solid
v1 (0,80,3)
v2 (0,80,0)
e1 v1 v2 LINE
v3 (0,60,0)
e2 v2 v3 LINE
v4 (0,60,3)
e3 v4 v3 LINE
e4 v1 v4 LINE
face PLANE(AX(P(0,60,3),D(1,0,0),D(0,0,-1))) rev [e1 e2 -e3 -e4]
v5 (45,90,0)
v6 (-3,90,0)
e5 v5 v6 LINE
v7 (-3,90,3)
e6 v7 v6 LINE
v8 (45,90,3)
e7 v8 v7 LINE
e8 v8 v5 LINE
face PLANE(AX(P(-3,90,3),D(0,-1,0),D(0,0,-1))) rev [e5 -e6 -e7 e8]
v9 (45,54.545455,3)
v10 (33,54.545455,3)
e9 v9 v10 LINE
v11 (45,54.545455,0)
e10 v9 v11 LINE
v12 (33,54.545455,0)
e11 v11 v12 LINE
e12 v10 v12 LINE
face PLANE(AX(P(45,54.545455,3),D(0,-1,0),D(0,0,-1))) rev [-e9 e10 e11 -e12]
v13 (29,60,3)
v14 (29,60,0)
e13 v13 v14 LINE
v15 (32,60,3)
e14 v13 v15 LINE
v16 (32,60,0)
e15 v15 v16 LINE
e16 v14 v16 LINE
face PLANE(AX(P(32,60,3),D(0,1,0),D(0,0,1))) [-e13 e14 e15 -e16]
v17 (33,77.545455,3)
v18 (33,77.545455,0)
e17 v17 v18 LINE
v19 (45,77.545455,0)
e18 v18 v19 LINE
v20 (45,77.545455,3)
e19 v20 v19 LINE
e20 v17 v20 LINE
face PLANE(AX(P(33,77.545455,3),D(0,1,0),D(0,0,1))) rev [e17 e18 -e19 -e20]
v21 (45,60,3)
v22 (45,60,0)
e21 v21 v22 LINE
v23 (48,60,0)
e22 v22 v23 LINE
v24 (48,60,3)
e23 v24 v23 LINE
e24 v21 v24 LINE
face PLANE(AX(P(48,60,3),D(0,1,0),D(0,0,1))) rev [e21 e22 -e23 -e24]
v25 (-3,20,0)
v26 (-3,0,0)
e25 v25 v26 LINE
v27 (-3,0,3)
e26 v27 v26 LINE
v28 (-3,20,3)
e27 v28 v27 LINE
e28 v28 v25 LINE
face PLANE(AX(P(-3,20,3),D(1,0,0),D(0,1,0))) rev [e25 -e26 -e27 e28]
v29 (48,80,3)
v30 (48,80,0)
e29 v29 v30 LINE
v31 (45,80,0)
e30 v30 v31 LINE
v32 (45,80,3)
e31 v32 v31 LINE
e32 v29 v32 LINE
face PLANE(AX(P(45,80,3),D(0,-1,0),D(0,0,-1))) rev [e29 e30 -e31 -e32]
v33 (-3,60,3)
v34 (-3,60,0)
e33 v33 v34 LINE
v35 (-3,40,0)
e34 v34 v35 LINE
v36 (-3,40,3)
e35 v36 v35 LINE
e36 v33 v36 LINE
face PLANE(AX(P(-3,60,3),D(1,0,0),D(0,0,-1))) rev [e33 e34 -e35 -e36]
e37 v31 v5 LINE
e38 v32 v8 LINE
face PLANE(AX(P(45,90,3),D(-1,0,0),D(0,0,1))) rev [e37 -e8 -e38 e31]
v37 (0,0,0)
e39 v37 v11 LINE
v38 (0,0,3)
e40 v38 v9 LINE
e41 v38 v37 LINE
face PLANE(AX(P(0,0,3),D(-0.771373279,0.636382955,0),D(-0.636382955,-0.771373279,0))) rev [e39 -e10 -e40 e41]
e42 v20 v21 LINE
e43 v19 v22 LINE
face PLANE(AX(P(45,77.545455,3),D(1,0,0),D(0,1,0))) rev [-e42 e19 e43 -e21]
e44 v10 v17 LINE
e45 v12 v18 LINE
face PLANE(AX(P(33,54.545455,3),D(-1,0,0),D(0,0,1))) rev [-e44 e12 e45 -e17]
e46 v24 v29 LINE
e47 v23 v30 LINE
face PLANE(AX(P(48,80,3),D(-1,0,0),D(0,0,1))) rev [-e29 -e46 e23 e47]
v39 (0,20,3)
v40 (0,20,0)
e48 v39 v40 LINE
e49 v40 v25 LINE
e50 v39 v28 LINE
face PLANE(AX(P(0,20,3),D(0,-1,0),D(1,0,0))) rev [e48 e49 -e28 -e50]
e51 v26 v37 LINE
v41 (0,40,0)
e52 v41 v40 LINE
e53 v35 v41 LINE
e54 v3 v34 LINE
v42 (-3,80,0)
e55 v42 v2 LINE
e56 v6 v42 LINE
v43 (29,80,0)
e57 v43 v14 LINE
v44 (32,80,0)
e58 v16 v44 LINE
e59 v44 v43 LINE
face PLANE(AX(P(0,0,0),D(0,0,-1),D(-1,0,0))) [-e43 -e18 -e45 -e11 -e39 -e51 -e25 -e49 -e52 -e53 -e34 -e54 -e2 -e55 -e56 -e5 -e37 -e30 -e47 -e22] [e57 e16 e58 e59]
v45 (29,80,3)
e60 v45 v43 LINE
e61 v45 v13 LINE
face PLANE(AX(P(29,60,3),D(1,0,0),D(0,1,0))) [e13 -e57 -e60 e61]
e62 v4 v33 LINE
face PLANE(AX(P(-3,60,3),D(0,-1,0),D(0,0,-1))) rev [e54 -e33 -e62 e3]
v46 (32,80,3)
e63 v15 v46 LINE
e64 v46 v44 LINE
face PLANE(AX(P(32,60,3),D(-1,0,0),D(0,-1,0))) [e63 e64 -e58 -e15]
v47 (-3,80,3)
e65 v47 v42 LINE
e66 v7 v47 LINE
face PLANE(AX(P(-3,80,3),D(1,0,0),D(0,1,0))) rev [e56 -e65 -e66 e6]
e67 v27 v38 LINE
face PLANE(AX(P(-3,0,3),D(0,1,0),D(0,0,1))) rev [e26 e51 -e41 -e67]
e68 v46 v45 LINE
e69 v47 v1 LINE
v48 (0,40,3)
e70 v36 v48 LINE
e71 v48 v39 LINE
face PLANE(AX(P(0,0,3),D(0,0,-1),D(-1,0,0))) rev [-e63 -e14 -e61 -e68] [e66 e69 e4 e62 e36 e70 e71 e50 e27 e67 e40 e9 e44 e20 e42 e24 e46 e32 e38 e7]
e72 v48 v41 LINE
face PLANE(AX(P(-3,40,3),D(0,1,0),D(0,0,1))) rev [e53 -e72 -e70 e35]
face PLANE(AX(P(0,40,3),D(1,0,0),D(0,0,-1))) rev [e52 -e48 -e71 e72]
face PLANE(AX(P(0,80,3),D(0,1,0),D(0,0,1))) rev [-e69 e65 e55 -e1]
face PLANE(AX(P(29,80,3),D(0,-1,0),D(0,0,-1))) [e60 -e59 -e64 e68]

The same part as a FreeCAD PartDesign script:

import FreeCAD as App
import Part
import Sketcher

doc = App.newDocument("Part")
body = doc.addObject("PartDesign::Body", "Body")

# Sketch on XY plane
sketch1 = doc.addObject("Sketcher::SketchObject", "Sketch")
body.addObject(sketch1)
sketch1.AttachmentSupport = (doc.XY_Plane, [""])
sketch1.MapMode = "FlatFace"
sketch1.addGeometry(Part.LineSegment(App.Vector(-3, 60, 0), App.Vector(-3, 40, 0)), False)
sketch1.addGeometry(Part.LineSegment(App.Vector(-3, 40, 0), App.Vector(0, 40, 0)), False)
sketch1.addGeometry(Part.LineSegment(App.Vector(0, 40, 0), App.Vector(0, 20, 0)), False)
sketch1.addGeometry(Part.LineSegment(App.Vector(0, 20, 0), App.Vector(-3, 20, 0)), False)
sketch1.addGeometry(Part.LineSegment(App.Vector(-3, 20, 0), App.Vector(-3, 0, 0)), False)
sketch1.addGeometry(Part.LineSegment(App.Vector(-3, 0, 0), App.Vector(0, 0, 0)), False)
sketch1.addGeometry(Part.LineSegment(App.Vector(0, 0, 0), App.Vector(45, 54.5, 0)), False)
sketch1.addGeometry(Part.LineSegment(App.Vector(45, 54.5, 0), App.Vector(33, 54.5, 0)), False)
sketch1.addGeometry(Part.LineSegment(App.Vector(33, 54.5, 0), App.Vector(33, 77.5, 0)), False)
sketch1.addGeometry(Part.LineSegment(App.Vector(33, 77.5, 0), App.Vector(45, 77.5, 0)), False)
sketch1.addGeometry(Part.LineSegment(App.Vector(45, 77.5, 0), App.Vector(45, 60, 0)), False)
sketch1.addGeometry(Part.LineSegment(App.Vector(45, 60, 0), App.Vector(48, 60, 0)), False)
sketch1.addGeometry(Part.LineSegment(App.Vector(48, 60, 0), App.Vector(48, 80, 0)), False)
sketch1.addGeometry(Part.LineSegment(App.Vector(48, 80, 0), App.Vector(45, 80, 0)), False)
sketch1.addGeometry(Part.LineSegment(App.Vector(45, 80, 0), App.Vector(45, 90, 0)), False)
sketch1.addGeometry(Part.LineSegment(App.Vector(45, 90, 0), App.Vector(-3, 90, 0)), False)
sketch1.addGeometry(Part.LineSegment(App.Vector(-3, 90, 0), App.Vector(-3, 80, 0)), False)
sketch1.addGeometry(Part.LineSegment(App.Vector(-3, 80, 0), App.Vector(0, 80, 0)), False)
sketch1.addGeometry(Part.LineSegment(App.Vector(0, 80, 0), App.Vector(0, 60, 0)), False)
sketch1.addGeometry(Part.LineSegment(App.Vector(0, 60, 0), App.Vector(-3, 60, 0)), False)
sketch1.addGeometry(Part.LineSegment(App.Vector(32, 60, 0), App.Vector(29, 60, 0)), False)
sketch1.addGeometry(Part.LineSegment(App.Vector(29, 60, 0), App.Vector(29, 80, 0)), False)
sketch1.addGeometry(Part.LineSegment(App.Vector(29, 80, 0), App.Vector(32, 80, 0)), False)
sketch1.addGeometry(Part.LineSegment(App.Vector(32, 80, 0), App.Vector(32, 60, 0)), False)
sketch1.addConstraint(Sketcher.Constraint("Coincident", 0, 2, 1, 1))
sketch1.addConstraint(Sketcher.Constraint("Coincident", 1, 2, 2, 1))
sketch1.addConstraint(Sketcher.Constraint("Coincident", 2, 2, 3, 1))
sketch1.addConstraint(Sketcher.Constraint("Coincident", 3, 2, 4, 1))
sketch1.addConstraint(Sketcher.Constraint("Coincident", 4, 2, 5, 1))
sketch1.addConstraint(Sketcher.Constraint("Coincident", 5, 2, 6, 1))
sketch1.addConstraint(Sketcher.Constraint("Coincident", 6, 2, 7, 1))
sketch1.addConstraint(Sketcher.Constraint("Coincident", 7, 2, 8, 1))
sketch1.addConstraint(Sketcher.Constraint("Coincident", 8, 2, 9, 1))
sketch1.addConstraint(Sketcher.Constraint("Coincident", 9, 2, 10, 1))
sketch1.addConstraint(Sketcher.Constraint("Coincident", 10, 2, 11, 1))
sketch1.addConstraint(Sketcher.Constraint("Coincident", 11, 2, 12, 1))
sketch1.addConstraint(Sketcher.Constraint("Coincident", 12, 2, 13, 1))
sketch1.addConstraint(Sketcher.Constraint("Coincident", 13, 2, 14, 1))
sketch1.addConstraint(Sketcher.Constraint("Coincident", 14, 2, 15, 1))
sketch1.addConstraint(Sketcher.Constraint("Coincident", 15, 2, 16, 1))
sketch1.addConstraint(Sketcher.Constraint("Coincident", 16, 2, 17, 1))
sketch1.addConstraint(Sketcher.Constraint("Coincident", 17, 2, 18, 1))
sketch1.addConstraint(Sketcher.Constraint("Coincident", 18, 2, 19, 1))
sketch1.addConstraint(Sketcher.Constraint("Coincident", 19, 2, 0, 1))
sketch1.addConstraint(Sketcher.Constraint("Coincident", 20, 2, 21, 1))
sketch1.addConstraint(Sketcher.Constraint("Coincident", 21, 2, 22, 1))
sketch1.addConstraint(Sketcher.Constraint("Coincident", 22, 2, 23, 1))
sketch1.addConstraint(Sketcher.Constraint("Coincident", 23, 2, 20, 1))
sketch1.addConstraint(Sketcher.Constraint("Vertical", 0))
sketch1.addConstraint(Sketcher.Constraint("Horizontal", 1))
sketch1.addConstraint(Sketcher.Constraint("Vertical", 2))
sketch1.addConstraint(Sketcher.Constraint("Horizontal", 3))
sketch1.addConstraint(Sketcher.Constraint("Vertical", 4))
sketch1.addConstraint(Sketcher.Constraint("Horizontal", 5))
sketch1.addConstraint(Sketcher.Constraint("Horizontal", 7))
sketch1.addConstraint(Sketcher.Constraint("Vertical", 8))
sketch1.addConstraint(Sketcher.Constraint("Horizontal", 9))
sketch1.addConstraint(Sketcher.Constraint("Vertical", 10))
sketch1.addConstraint(Sketcher.Constraint("Horizontal", 11))
sketch1.addConstraint(Sketcher.Constraint("Vertical", 12))
sketch1.addConstraint(Sketcher.Constraint("Horizontal", 13))
sketch1.addConstraint(Sketcher.Constraint("Vertical", 14))
sketch1.addConstraint(Sketcher.Constraint("Horizontal", 15))
sketch1.addConstraint(Sketcher.Constraint("Vertical", 16))
sketch1.addConstraint(Sketcher.Constraint("Horizontal", 17))
sketch1.addConstraint(Sketcher.Constraint("Vertical", 18))
sketch1.addConstraint(Sketcher.Constraint("Horizontal", 19))
sketch1.addConstraint(Sketcher.Constraint("Horizontal", 20))
sketch1.addConstraint(Sketcher.Constraint("Vertical", 21))
sketch1.addConstraint(Sketcher.Constraint("Horizontal", 22))
sketch1.addConstraint(Sketcher.Constraint("Vertical", 23))
sketch1.addConstraint(Sketcher.Constraint("Coincident", 5, 2, -1, 1))
sketch1.addConstraint(Sketcher.Constraint("PointOnObject", 1, 2, -2))
sketch1.addConstraint(Sketcher.Constraint("PointOnObject", 17, 2, -2))
sketch1.addConstraint(Sketcher.Constraint("Horizontal", 13, 2, 16, 2))
sketch1.addConstraint(Sketcher.Constraint("Horizontal", 11, 2, 18, 2))
sketch1.addConstraint(Sketcher.Constraint("Horizontal", 19, 2, 20, 2))
sketch1.addConstraint(Sketcher.Constraint("Horizontal", 17, 2, 21, 2))
sketch1.addConstraint(Sketcher.Constraint("Vertical", 0, 2, 3, 2))
sketch1.addConstraint(Sketcher.Constraint("Vertical", 6, 2, 9, 2))
sketch1.addConstraint(Sketcher.Constraint("Vertical", 10, 2, 13, 2))
sketch1.addConstraint(Sketcher.Constraint("Vertical", 4, 2, 15, 2))
sketch1.addConstraint(Sketcher.Constraint("Equal", 5, 11))
sketch1.addConstraint(Sketcher.Constraint("Equal", 19, 20))
sketch1.addConstraint(Sketcher.Constraint("Equal", 0, 2))
sketch1.addConstraint(Sketcher.Constraint("Equal", 2, 4))
sketch1.addConstraint(Sketcher.Constraint("Equal", 4, 12))
sketch1.addConstraint(Sketcher.Constraint("DistanceX", 1, 1, 1, 2, 3.0))
sketch1.addConstraint(Sketcher.Constraint("DistanceX", 7, 2, 7, 1, 12.0))
sketch1.addConstraint(Sketcher.Constraint("DistanceX", 15, 2, 15, 1, 48.0))
sketch1.addConstraint(Sketcher.Constraint("DistanceY", 0, 2, 0, 1, 20.0))
sketch1.addConstraint(Sketcher.Constraint("DistanceY", 8, 1, 8, 2, 23.0))
sketch1.addConstraint(Sketcher.Constraint("DistanceY", 14, 1, 14, 2, 10.0))
sketch1.addConstraint(Sketcher.Constraint("DistanceX", -1, 1, 20, 2, 29.0))
sketch1.addConstraint(Sketcher.Constraint("Distance", 6, 70.712139))
pad1 = doc.addObject("PartDesign::Pad", "Pad")
body.addObject(pad1)
pad1.Profile = sketch1
pad1.Length = 3

doc.recompute()
